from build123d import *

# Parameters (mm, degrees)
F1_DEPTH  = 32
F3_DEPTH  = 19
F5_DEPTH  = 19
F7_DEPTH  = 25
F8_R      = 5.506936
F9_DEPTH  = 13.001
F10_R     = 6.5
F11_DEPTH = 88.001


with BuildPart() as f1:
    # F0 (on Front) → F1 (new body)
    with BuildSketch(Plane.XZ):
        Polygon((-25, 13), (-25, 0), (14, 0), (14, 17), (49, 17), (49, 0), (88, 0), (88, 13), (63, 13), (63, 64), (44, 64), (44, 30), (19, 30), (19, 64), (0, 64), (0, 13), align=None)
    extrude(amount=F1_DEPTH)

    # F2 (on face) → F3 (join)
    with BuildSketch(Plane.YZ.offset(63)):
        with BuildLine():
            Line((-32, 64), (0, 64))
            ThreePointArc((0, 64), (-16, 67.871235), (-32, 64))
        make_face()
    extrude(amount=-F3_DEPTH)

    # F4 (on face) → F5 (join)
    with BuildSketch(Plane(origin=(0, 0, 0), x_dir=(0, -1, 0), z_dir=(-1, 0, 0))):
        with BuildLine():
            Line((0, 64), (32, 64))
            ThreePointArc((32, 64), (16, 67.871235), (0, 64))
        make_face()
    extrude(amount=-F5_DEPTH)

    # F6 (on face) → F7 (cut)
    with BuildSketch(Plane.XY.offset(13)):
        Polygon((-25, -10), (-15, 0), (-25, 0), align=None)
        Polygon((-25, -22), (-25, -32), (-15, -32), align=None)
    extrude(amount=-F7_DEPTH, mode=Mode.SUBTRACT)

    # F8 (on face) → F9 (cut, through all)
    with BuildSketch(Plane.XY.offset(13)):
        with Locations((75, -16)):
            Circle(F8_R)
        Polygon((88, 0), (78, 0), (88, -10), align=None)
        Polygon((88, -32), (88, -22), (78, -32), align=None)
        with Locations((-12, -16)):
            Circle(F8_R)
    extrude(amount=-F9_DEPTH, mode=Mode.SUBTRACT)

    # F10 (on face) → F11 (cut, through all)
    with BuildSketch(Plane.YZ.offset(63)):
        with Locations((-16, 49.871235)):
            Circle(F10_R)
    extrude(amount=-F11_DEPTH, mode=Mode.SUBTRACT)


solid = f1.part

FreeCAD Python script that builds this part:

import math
import FreeCAD as App
import Part
import Sketcher

V = App.Vector
Q = App.Units.Quantity

doc = App.newDocument("Part")
params = doc.addObject("Spreadsheet::Sheet", "Params")
for row, (alias, value) in enumerate([
    ("sketch1_width", "39 mm"),
    ("sketch1_width2", "35 mm"),
    ("sketch1_width3", "25 mm"),
    ("sketch1_height", "13 mm"),
    ("sketch1_height2", "17 mm"),
    ("pad1_length", "32 mm"),
    ("sketch2_radius", "35.000001 mm"),
    ("sketch2_width", "32 mm"),
    ("pad2_length", "19 mm"),
    ("sketch3_radius", "35.000001 mm"),
    ("sketch3_width", "32 mm"),
    ("pad3_length", "19 mm"),
    ("sketch4_width", "10 mm"),
    ("pocket1_length", "25 mm"),
    ("sketch5_width", "10 mm"),
    ("sketch6_diameter", "13 mm"),
], start=1):
    params.set(f"A{row}", alias)
    params.set(f"B{row}", "=" + value)
    params.setAlias(f"B{row}", alias)

body = doc.addObject("PartDesign::Body", "Body")

sketch1 = body.newObject("Sketcher::SketchObject", "Sketch")
sketch1.AttachmentSupport = (doc.getObject("XZ_Plane"), [""])
sketch1.MapMode = "FlatFace"
sketch1.addGeometry([
    Part.LineSegment(V(-25, 13, 0), V(-25, 0, 0)),
    Part.LineSegment(V(-25, 0, 0), V(14, 0, 0)),
    Part.LineSegment(V(14, 0, 0), V(14, 17, 0)),
    Part.LineSegment(V(14, 17, 0), V(49, 17, 0)),
    Part.LineSegment(V(49, 17, 0), V(49, 0, 0)),
    Part.LineSegment(V(49, 0, 0), V(88, 0, 0)),
    Part.LineSegment(V(88, 0, 0), V(88, 13, 0)),
    Part.LineSegment(V(88, 13, 0), V(63, 13, 0)),
    Part.LineSegment(V(63, 13, 0), V(63, 64, 0)),
    Part.LineSegment(V(63, 64, 0), V(44, 64, 0)),
    Part.LineSegment(V(44, 64, 0), V(44, 30, 0)),
    Part.LineSegment(V(44, 30, 0), V(19, 30, 0)),
    Part.LineSegment(V(19, 30, 0), V(19, 64, 0)),
    Part.LineSegment(V(19, 64, 0), V(0, 64, 0)),
    Part.LineSegment(V(0, 64, 0), V(0, 13, 0)),
    Part.LineSegment(V(0, 13, 0), V(-25, 13, 0)),
], False)
sketch1.addConstraint([
    Sketcher.Constraint("Coincident", 0, 2, 1, 1),
    Sketcher.Constraint("Coincident", 1, 2, 2, 1),
    Sketcher.Constraint("Coincident", 2, 2, 3, 1),
    Sketcher.Constraint("Coincident", 3, 2, 4, 1),
    Sketcher.Constraint("Coincident", 4, 2, 5, 1),
    Sketcher.Constraint("Coincident", 5, 2, 6, 1),
    Sketcher.Constraint("Coincident", 6, 2, 7, 1),
    Sketcher.Constraint("Coincident", 7, 2, 8, 1),
    Sketcher.Constraint("Coincident", 8, 2, 9, 1),
    Sketcher.Constraint("Coincident", 9, 2, 10, 1),
    Sketcher.Constraint("Coincident", 10, 2, 11, 1),
    Sketcher.Constraint("Coincident", 11, 2, 12, 1),
    Sketcher.Constraint("Coincident", 12, 2, 13, 1),
    Sketcher.Constraint("Coincident", 13, 2, 14, 1),
    Sketcher.Constraint("Coincident", 14, 2, 15, 1),
    Sketcher.Constraint("Coincident", 15, 2, 0, 1),
    Sketcher.Constraint("Vertical", 0),
    Sketcher.Constraint("Horizontal", 1),
    Sketcher.Constraint("Vertical", 2),
    Sketcher.Constraint("Horizontal", 3),
    Sketcher.Constraint("Vertical", 4),
    Sketcher.Constraint("Horizontal", 5),
    Sketcher.Constraint("Vertical", 6),
    Sketcher.Constraint("Horizontal", 7),
    Sketcher.Constraint("Vertical", 8),
    Sketcher.Constraint("Horizontal", 9),
    Sketcher.Constraint("Vertical", 10),
    Sketcher.Constraint("Horizontal", 11),
    Sketcher.Constraint("Vertical", 12),
    Sketcher.Constraint("Horizontal", 13),
    Sketcher.Constraint("Vertical", 14),
    Sketcher.Constraint("Horizontal", 15),
    Sketcher.Constraint("PointOnObject", 0, 2, -1),
    Sketcher.Constraint("PointOnObject", 4, 2, -1),
    Sketcher.Constraint("PointOnObject", 13, 2, -2),
    Sketcher.Constraint("Horizontal", 9, 2, 12, 2),
    Sketcher.Constraint("Horizontal", 7, 2, 14, 2),
    Sketcher.Constraint("Equal", 1, 5),
    Sketcher.Constraint("Equal", 7, 11),
    Sketcher.Constraint("Equal", 9, 13),
    Sketcher.Constraint("Equal", 11, 15),
    Sketcher.Constraint("DistanceX", 1, 1, 1, 2, Q("39 mm")),
    Sketcher.Constraint("DistanceX", 3, 1, 3, 2, Q("35 mm")),
    Sketcher.Constraint("DistanceX", 7, 2, 7, 1, Q("25 mm")),
    Sketcher.Constraint("DistanceY", 0, 2, 0, 1, Q("13 mm")),
    Sketcher.Constraint("DistanceY", 2, 1, 2, 2, Q("17 mm")),
    Sketcher.Constraint("DistanceY", 8, 1, 8, 2, Q("51 mm")),
    Sketcher.Constraint("DistanceY", 10, 2, 10, 1, Q("34 mm")),
])
sketch1.setExpression("Constraints[41]", "Params.sketch1_width")
sketch1.setExpression("Constraints[42]", "Params.sketch1_width2")
sketch1.setExpression("Constraints[43]", "Params.sketch1_width3")
sketch1.setExpression("Constraints[44]", "Params.sketch1_height")
sketch1.setExpression("Constraints[45]", "Params.sketch1_height2")
pad1 = body.newObject("PartDesign::Pad", "Pad")
pad1.Profile = sketch1
pad1.setExpression("Length", "Params.pad1_length")

sketch2 = body.newObject("Sketcher::SketchObject", "Sketch001")
sketch2.AttachmentSupport = (doc.getObject("YZ_Plane"), [""])
sketch2.MapMode = "FlatFace"
sketch2.AttachmentOffset = App.Placement(V(0, 0, 63), App.Rotation())
sketch2.addGeometry([
    Part.LineSegment(V(-32, 64, 0), V(0, 64, 0)),
    Part.ArcOfCircle(Part.Circle(V(-16, 33, 0), V(0, 0, 1), 35), math.radians(63), math.radians(117)),
], False)
sketch2.addConstraint([
    Sketcher.Constraint("Coincident", 0, 1, 1, 2),
    Sketcher.Constraint("Coincident", 1, 1, 0, 2),
    Sketcher.Constraint("Horizontal", 0),
    Sketcher.Constraint("PointOnObject", 1, 1, -2),
    Sketcher.Constraint("Radius", 1, Q("35.000001 mm")),
    Sketcher.Constraint("DistanceX", 0, 1, 0, 2, Q("32 mm")),
    Sketcher.Constraint("DistanceY", -1, 1, 0, 1, Q("64 mm")),
])
sketch2.setExpression("Constraints[4]", "Params.sketch2_radius")
sketch2.setExpression("Constraints[5]", "Params.sketch2_width")
pad2 = body.newObject("PartDesign::Pad", "Pad001")
pad2.Profile = sketch2
pad2.setExpression("Length", "Params.pad2_length")
pad2.Reversed = True

sketch3 = body.newObject("Sketcher::SketchObject", "Sketch002")
sketch3.AttachmentSupport = (doc.getObject("YZ_Plane"), [""])
sketch3.MapMode = "FlatFace"
sketch3.addGeometry([
    Part.LineSegment(V(0, 64, 0), V(-32, 64, 0)),
    Part.ArcOfCircle(Part.Circle(V(-16, 33, 0), V(0, 0, 1), 35), math.radians(63), math.radians(117)),
], False)
sketch3.addConstraint([
    Sketcher.Constraint("Coincident", 0, 1, 1, 1),
    Sketcher.Constraint("Coincident", 1, 2, 0, 2),
    Sketcher.Constraint("Horizontal", 0),
    Sketcher.Constraint("PointOnObject", 0, 1, -2),
    Sketcher.Constraint("Radius", 1, Q("35.000001 mm")),
    Sketcher.Constraint("DistanceX", 0, 2, 0, 1, Q("32 mm")),
    Sketcher.Constraint("DistanceY", -1, 1, 0, 1, Q("64 mm")),
])
sketch3.setExpression("Constraints[4]", "Params.sketch3_radius")
sketch3.setExpression("Constraints[5]", "Params.sketch3_width")
pad3 = body.newObject("PartDesign::Pad", "Pad002")
pad3.Profile = sketch3
pad3.setExpression("Length", "Params.pad3_length")

sketch4 = body.newObject("Sketcher::SketchObject", "Sketch003")
sketch4.AttachmentSupport = (doc.getObject("XY_Plane"), [""])
sketch4.MapMode = "FlatFace"
sketch4.AttachmentOffset = App.Placement(V(0, 0, 13), App.Rotation())
sketch4.addGeometry([
    Part.LineSegment(V(-25, -10, 0), V(-15, 0, 0)),
    Part.LineSegment(V(-15, 0, 0), V(-25, 0, 0)),
    Part.LineSegment(V(-25, 0, 0), V(-25, -10, 0)),
    Part.LineSegment(V(-25, -22, 0), V(-25, -32, 0)),
    Part.LineSegment(V(-25, -32, 0), V(-15, -32, 0)),
    Part.LineSegment(V(-15, -32, 0), V(-25, -22, 0)),
], False)
sketch4.addConstraint([
    Sketcher.Constraint("Coincident", 0, 2, 1, 1),
    Sketcher.Constraint("Coincident", 1, 2, 2, 1),
    Sketcher.Constraint("Coincident", 2, 2, 0, 1),
    Sketcher.Constraint("Coincident", 3, 2, 4, 1),
    Sketcher.Constraint("Coincident", 4, 2, 5, 1),
    Sketcher.Constraint("Coincident", 5, 2, 3, 1),
    Sketcher.Constraint("Horizontal", 1),
    Sketcher.Constraint("Vertical", 2),
    Sketcher.Constraint("Vertical", 3),
    Sketcher.Constraint("Horizontal", 4),
    Sketcher.Constraint("PointOnObject", 0, 2, -1),
    Sketcher.Constraint("Perpendicular", 0, 5),
    Sketcher.Constraint("Vertical", 2, 2, 3, 2),
    Sketcher.Constraint("Vertical", 0, 2, 4, 2),
    Sketcher.Constraint("Equal", 4, 2),
    Sketcher.Constraint("DistanceX", 1, 2, 1, 1, Q("10 mm")),
    Sketcher.Constraint("DistanceX", 0, 2, -1, 1, Q("15 mm")),
    Sketcher.Constraint("DistanceY", 3, 2, -1, 1, Q("32 mm")),
])
sketch4.setExpression("Constraints[15]", "Params.sketch4_width")
pocket1 = body.newObject("PartDesign::Pocket", "Pocket")
pocket1.Profile = sketch4
pocket1.setExpression("Length", "Params.pocket1_length")

sketch5 = body.newObject("Sketcher::SketchObject", "Sketch004")
sketch5.AttachmentSupport = (doc.getObject("XY_Plane"), [""])
sketch5.MapMode = "FlatFace"
sketch5.AttachmentOffset = App.Placement(V(0, 0, 13), App.Rotation())
sketch5.addGeometry([
    Part.Circle(V(75, -16, 0), V(0, 0, 1), 6),
    Part.LineSegment(V(88, 0, 0), V(78, 0, 0)),
    Part.LineSegment(V(78, 0, 0), V(88, -10, 0)),
    Part.LineSegment(V(88, -10, 0), V(88, 0, 0)),
    Part.LineSegment(V(88, -32, 0), V(88, -22, 0)),
    Part.LineSegment(V(88, -22, 0), V(78, -32, 0)),
    Part.LineSegment(V(78, -32, 0), V(88, -32, 0)),
    Part.Circle(V(-12, -16, 0), V(0, 0, 1), 6),
], False)
sketch5.addConstraint([
    Sketcher.Constraint("Coincident", 1, 2, 2, 1),
    Sketcher.Constraint("Coincident", 2, 2, 3, 1),
    Sketcher.Constraint("Coincident", 3, 2, 1, 1),
    Sketcher.Constraint("Coincident", 4, 2, 5, 1),
    Sketcher.Constraint("Coincident", 5, 2, 6, 1),
    Sketcher.Constraint("Coincident", 6, 2, 4, 1),
    Sketcher.Constraint("Horizontal", 1),
    Sketcher.Constraint("Vertical", 3),
    Sketcher.Constraint("Vertical", 4),
    Sketcher.Constraint("Horizontal", 6),
    Sketcher.Constraint("Equal", 0, 7),
    Sketcher.Constraint("PointOnObject", 1, 2, -1),
    Sketcher.Constraint("Perpendicular", 2, 5),
    Sketcher.Constraint("Horizontal", 0, 3, 7, 3),
    Sketcher.Constraint("Vertical", 3, 2, 4, 2),
    Sketcher.Constraint("Vertical", 1, 2, 5, 2),
    Sketcher.Constraint("Equal", 6, 3),
    Sketcher.Constraint("DistanceX", 1, 2, 1, 1, Q("10 mm")),
    Sketcher.Constraint("DistanceX", -1, 1, 0, 3, Q("75 mm")),
    Sketcher.Constraint("DistanceY", 0, 3, -1, 1, Q("16 mm")),
    Sketcher.Constraint("DistanceX", 7, 3, -1, 1, Q("12 mm")),
    Sketcher.Constraint("DistanceX", -1, 1, 1, 2, Q("78 mm")),
    Sketcher.Constraint("DistanceY", 4, 2, -1, 1, Q("22 mm")),
    Sketcher.Constraint("Diameter", 0, Q("11.013872 mm")),
])
sketch5.setExpression("Constraints[17]", "Params.sketch5_width")
pocket2 = body.newObject("PartDesign::Pocket", "Pocket001")
pocket2.Profile = sketch5
pocket2.Type = "ThroughAll"

sketch6 = body.newObject("Sketcher::SketchObject", "Sketch005")
sketch6.AttachmentSupport = (doc.getObject("YZ_Plane"), [""])
sketch6.MapMode = "FlatFace"
sketch6.AttachmentOffset = App.Placement(V(0, 0, 63), App.Rotation())
sketch6.addGeometry(Part.Circle(V(-16, 50, 0), V(0, 0, 1), 6), False)
sketch6.addConstraint([
    Sketcher.Constraint("Diameter", 0, Q("13 mm")),
    Sketcher.Constraint("DistanceX", 0, 3, -1, 1, Q("16 mm")),
    Sketcher.Constraint("DistanceY", -1, 1, 0, 3, Q("49.871235 mm")),
])
sketch6.setExpression("Constraints[0]", "Params.sketch6_diameter")
pocket3 = body.newObject("PartDesign::Pocket", "Pocket002")
pocket3.Profile = sketch6
pocket3.Type = "ThroughAll"

doc.recompute()
